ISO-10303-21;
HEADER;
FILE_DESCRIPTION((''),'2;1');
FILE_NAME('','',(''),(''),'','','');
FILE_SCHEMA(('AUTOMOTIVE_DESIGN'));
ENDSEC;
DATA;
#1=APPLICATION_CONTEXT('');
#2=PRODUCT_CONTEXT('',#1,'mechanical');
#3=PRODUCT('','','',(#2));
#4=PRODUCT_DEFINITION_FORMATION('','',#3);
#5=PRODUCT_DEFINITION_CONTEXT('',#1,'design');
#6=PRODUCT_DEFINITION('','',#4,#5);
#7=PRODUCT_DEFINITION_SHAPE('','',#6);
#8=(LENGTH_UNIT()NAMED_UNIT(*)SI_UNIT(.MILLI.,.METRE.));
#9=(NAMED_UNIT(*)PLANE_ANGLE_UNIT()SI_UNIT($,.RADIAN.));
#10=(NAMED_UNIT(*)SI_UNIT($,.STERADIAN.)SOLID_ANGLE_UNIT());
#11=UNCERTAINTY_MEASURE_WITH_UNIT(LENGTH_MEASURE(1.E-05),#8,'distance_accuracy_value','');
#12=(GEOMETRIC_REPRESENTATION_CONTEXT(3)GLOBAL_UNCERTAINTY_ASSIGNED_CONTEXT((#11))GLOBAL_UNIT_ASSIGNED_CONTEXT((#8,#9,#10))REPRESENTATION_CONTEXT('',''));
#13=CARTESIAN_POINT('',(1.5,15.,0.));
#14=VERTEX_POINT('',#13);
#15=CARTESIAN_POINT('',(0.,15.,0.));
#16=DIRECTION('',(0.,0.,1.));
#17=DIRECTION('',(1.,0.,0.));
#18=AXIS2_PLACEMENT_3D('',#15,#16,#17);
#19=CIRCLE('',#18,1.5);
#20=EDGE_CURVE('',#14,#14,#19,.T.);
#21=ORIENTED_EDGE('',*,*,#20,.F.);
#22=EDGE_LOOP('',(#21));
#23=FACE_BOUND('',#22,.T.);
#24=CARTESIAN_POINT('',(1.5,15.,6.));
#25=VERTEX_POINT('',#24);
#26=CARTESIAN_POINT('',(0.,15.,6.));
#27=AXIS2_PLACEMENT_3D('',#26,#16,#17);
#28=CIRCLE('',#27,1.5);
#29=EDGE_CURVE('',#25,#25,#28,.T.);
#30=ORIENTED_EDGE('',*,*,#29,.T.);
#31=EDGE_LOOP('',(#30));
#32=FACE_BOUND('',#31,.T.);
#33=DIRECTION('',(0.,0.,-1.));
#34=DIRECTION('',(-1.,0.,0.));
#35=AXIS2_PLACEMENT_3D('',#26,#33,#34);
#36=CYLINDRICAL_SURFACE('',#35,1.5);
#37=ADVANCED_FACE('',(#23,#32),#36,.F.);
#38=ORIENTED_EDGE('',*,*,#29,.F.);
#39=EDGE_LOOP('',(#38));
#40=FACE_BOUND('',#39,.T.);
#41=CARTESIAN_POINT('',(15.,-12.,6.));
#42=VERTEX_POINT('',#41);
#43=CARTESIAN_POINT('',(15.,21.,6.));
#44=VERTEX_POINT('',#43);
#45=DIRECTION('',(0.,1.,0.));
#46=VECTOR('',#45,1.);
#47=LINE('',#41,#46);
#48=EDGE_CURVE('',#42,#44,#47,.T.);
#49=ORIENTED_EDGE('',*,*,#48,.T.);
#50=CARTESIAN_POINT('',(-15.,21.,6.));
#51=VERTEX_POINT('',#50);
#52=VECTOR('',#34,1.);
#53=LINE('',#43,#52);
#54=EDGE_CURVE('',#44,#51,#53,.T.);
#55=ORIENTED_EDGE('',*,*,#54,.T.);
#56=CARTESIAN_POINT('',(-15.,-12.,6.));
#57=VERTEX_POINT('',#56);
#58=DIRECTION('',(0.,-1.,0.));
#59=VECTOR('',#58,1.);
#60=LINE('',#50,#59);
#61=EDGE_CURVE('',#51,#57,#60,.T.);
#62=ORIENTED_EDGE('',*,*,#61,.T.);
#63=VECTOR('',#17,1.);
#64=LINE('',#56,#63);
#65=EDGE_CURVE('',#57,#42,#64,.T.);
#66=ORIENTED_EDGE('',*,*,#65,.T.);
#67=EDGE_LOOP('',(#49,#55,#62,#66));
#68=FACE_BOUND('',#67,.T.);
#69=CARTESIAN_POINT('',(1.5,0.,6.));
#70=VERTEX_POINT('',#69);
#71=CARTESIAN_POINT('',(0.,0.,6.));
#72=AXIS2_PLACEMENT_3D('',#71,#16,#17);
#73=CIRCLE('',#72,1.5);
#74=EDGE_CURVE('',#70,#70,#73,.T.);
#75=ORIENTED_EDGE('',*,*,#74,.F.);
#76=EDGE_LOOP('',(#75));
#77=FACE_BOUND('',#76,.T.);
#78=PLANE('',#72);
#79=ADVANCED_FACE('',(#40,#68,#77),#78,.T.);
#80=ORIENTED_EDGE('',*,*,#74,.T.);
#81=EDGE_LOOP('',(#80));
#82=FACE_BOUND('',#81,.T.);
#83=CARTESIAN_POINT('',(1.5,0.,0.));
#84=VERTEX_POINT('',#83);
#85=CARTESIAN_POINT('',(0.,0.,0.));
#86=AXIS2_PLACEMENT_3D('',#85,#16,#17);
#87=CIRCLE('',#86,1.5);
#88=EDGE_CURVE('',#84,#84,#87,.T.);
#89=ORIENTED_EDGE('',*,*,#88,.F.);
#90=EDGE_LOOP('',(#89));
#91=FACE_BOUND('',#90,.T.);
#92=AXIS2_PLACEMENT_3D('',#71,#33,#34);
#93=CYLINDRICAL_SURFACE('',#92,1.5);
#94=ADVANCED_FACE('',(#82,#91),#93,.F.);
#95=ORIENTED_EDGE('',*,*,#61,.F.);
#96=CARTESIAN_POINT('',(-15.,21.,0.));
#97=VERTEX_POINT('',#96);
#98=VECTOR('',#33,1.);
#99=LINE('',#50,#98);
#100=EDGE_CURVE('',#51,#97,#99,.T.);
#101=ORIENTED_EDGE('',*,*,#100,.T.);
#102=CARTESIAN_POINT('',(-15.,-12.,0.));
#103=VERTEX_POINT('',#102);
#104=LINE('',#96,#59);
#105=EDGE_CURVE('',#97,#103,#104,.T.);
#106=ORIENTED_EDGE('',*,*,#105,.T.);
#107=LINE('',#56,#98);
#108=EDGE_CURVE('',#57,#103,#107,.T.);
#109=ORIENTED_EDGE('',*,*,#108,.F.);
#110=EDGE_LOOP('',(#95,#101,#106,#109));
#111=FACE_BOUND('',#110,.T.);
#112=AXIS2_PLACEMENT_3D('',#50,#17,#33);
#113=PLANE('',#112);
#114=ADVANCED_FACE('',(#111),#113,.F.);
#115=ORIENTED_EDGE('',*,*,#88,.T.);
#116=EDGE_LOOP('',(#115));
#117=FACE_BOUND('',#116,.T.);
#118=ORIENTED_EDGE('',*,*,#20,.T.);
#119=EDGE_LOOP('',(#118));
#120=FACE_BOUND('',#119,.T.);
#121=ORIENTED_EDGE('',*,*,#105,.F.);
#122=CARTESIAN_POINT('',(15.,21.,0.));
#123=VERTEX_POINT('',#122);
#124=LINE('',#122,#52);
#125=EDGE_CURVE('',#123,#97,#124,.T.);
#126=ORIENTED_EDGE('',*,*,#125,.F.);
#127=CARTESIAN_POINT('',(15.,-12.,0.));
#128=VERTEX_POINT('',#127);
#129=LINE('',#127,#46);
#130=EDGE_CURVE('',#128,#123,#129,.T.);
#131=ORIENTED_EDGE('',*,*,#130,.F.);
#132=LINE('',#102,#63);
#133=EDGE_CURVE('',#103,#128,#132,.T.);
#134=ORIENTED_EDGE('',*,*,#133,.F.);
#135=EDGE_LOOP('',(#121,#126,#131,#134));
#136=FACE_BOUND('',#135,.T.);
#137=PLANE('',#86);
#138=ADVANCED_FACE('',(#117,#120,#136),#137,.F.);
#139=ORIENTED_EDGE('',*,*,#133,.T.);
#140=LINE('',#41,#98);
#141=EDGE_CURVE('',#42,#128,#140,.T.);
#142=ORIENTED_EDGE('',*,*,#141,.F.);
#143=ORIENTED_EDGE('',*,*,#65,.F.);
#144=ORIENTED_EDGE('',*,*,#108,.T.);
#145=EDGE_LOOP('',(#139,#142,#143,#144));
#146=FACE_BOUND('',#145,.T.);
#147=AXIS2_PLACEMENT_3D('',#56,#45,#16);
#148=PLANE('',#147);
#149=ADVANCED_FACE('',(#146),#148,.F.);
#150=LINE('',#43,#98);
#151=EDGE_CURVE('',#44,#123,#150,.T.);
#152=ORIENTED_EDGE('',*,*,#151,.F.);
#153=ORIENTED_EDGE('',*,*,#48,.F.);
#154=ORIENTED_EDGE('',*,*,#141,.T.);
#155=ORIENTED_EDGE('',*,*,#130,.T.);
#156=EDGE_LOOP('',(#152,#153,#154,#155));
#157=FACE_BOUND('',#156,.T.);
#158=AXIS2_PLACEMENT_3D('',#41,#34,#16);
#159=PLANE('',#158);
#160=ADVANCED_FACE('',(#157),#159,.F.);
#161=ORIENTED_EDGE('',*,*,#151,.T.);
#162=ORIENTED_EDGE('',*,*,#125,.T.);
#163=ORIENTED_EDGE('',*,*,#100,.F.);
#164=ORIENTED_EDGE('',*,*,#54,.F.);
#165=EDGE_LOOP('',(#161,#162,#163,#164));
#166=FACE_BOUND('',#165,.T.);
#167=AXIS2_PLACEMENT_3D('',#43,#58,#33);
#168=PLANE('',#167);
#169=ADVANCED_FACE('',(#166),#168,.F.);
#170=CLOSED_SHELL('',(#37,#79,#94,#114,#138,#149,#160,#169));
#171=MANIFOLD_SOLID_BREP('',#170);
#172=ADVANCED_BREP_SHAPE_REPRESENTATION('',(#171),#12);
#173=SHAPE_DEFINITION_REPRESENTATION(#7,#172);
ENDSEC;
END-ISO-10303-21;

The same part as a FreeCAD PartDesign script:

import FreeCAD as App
import Part
import Sketcher
Q = App.Units.Quantity

doc = App.newDocument("Part")
body = doc.addObject("PartDesign::Body", "Body")

# Sketch on XY plane
sketch1 = body.newObject("Sketcher::SketchObject", "Sketch")
sketch1.AttachmentSupport = (doc.getObject("XY_Plane"), [""])
sketch1.MapMode = "FlatFace"
sketch1.addGeometry([
    Part.LineSegment(App.Vector(-15, 21, 0), App.Vector(-15, -12, 0)),  # 0
    Part.LineSegment(App.Vector(-15, -12, 0), App.Vector(15, -12, 0)),  # 1
    Part.LineSegment(App.Vector(15, -12, 0), App.Vector(15, 21, 0)),  # 2
    Part.LineSegment(App.Vector(15, 21, 0), App.Vector(-15, 21, 0)),  # 3
    Part.Circle(App.Vector(0, 0, 0), App.Vector(0, 0, 1), 1.5),  # 4
    Part.Circle(App.Vector(0, 15, 0), App.Vector(0, 0, 1), 1.5),  # 5
], False)
sketch1.addConstraint([
    Sketcher.Constraint("Coincident", 0, 2, 1, 1),
    Sketcher.Constraint("Coincident", 1, 2, 2, 1),
    Sketcher.Constraint("Coincident", 2, 2, 3, 1),
    Sketcher.Constraint("Coincident", 3, 2, 0, 1),
    Sketcher.Constraint("Vertical", 0),
    Sketcher.Constraint("Horizontal", 1),
    Sketcher.Constraint("Vertical", 2),
    Sketcher.Constraint("Horizontal", 3),
    Sketcher.Constraint("Coincident", 4, 3, -1, 1),
    Sketcher.Constraint("Equal", 4, 5),
    Sketcher.Constraint("PointOnObject", 5, 3, -2),
    Sketcher.Constraint("Diameter", 4, Q("3 mm")),
    Sketcher.Constraint("DistanceX", 1, 1, 1, 2, Q("30 mm")),
    Sketcher.Constraint("DistanceY", 0, 2, 0, 1, Q("33 mm")),
    Sketcher.Constraint("DistanceY", -1, 1, 5, 3, Q("15 mm")),
    Sketcher.Constraint("DistanceX", 0, 2, -1, 1, Q("15 mm")),
    Sketcher.Constraint("DistanceY", 0, 2, -1, 1, Q("12 mm")),
])
pad1 = body.newObject("PartDesign::Pad", "Pad")
pad1.Profile = sketch1
pad1.Length = 6

doc.recompute()
